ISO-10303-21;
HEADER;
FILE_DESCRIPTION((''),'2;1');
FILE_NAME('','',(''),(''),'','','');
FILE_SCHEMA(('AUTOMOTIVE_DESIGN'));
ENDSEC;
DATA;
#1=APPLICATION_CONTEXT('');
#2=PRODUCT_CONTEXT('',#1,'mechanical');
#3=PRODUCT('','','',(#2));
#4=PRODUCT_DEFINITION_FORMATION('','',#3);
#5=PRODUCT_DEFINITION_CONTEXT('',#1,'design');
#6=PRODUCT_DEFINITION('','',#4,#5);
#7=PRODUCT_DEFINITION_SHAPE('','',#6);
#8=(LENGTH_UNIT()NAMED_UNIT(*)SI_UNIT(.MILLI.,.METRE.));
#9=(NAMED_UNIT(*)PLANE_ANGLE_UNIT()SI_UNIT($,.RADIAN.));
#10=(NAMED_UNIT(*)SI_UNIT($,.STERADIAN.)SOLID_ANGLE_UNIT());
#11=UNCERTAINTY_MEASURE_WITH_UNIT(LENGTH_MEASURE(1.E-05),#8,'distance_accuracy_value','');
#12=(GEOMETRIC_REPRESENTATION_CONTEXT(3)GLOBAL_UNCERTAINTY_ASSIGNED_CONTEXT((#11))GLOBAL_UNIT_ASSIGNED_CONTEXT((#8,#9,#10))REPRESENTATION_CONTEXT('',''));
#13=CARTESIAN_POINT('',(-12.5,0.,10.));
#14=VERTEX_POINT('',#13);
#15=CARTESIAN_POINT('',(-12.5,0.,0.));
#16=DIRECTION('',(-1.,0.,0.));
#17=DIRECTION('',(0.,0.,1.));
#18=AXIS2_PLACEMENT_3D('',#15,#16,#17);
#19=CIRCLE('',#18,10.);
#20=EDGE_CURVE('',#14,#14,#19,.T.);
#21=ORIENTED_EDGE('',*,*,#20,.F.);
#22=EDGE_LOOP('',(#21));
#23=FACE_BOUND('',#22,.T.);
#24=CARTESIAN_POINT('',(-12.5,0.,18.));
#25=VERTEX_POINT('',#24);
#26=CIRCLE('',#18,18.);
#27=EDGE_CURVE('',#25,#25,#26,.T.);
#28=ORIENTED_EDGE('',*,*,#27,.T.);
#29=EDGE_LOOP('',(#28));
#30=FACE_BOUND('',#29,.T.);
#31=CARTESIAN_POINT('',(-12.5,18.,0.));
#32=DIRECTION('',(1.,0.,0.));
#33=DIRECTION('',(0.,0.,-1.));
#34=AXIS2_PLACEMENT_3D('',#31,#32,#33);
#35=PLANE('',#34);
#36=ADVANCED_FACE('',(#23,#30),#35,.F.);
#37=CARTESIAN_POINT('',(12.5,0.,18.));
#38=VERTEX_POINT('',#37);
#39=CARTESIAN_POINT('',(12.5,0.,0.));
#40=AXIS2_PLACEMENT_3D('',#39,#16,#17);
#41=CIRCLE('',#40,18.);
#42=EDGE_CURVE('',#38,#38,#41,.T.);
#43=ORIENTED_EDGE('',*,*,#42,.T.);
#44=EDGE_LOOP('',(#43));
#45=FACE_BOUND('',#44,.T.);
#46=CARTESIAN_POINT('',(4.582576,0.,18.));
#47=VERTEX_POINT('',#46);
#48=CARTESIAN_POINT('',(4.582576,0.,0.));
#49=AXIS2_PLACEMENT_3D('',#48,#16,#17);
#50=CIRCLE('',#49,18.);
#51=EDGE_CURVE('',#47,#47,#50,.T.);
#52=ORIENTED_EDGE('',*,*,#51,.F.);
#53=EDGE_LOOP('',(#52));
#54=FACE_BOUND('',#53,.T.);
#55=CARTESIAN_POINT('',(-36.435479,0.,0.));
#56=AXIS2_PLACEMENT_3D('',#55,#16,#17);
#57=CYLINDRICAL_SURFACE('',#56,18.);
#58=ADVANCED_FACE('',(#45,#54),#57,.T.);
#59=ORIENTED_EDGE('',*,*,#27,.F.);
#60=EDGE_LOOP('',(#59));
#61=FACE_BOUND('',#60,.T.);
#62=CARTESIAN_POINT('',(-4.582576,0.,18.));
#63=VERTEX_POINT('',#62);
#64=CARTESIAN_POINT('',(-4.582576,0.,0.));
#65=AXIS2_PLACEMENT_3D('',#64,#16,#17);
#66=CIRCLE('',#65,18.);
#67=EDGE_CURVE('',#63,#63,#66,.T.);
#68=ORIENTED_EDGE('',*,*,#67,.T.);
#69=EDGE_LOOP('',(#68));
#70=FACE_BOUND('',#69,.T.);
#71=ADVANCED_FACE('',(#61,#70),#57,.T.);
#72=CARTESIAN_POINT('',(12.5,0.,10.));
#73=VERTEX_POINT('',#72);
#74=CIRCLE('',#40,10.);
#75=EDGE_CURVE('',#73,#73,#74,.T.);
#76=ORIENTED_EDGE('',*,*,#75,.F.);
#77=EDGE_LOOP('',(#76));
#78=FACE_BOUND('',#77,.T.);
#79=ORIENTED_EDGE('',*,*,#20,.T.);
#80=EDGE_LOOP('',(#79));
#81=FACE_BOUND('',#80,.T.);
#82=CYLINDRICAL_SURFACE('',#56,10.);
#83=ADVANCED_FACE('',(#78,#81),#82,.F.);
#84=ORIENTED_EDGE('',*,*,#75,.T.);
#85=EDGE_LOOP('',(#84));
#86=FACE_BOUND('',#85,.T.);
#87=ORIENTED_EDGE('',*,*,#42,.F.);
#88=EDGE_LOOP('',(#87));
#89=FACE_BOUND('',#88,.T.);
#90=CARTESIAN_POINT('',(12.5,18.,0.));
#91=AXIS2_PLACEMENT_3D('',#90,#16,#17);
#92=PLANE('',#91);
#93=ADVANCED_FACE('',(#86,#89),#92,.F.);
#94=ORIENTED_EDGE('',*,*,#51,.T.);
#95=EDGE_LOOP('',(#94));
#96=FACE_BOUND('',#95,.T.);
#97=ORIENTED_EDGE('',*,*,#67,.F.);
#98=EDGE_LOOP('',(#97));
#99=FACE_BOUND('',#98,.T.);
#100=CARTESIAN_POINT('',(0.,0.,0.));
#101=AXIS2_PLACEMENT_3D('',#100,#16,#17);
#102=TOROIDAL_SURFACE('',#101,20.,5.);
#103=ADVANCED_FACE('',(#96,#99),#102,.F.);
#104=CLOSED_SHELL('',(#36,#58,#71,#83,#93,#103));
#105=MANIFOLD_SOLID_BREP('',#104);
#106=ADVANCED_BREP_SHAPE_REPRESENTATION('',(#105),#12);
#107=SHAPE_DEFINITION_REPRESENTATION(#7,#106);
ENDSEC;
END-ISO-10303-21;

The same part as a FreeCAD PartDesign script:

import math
import FreeCAD as App
import Part
import Sketcher

doc = App.newDocument("Part")
body = doc.addObject("PartDesign::Body", "Body")

sketch1 = body.newObject("Sketcher::SketchObject", "Sketch")
sketch1.AttachmentSupport = (doc.getObject("XY_Plane"), [""])
sketch1.MapMode = "FlatFace"
sketch1.addGeometry(Part.LineSegment(App.Vector(12, 18, 0), App.Vector(5, 18, 0)), False)
sketch1.addGeometry(Part.ArcOfCircle(Part.Circle(App.Vector(0, 20, 0), App.Vector(0, 0, 1), 5), math.radians(-156), math.radians(-24)), False)
sketch1.addGeometry(Part.LineSegment(App.Vector(-5, 18, 0), App.Vector(-12, 18, 0)), False)
sketch1.addGeometry(Part.LineSegment(App.Vector(-12, 18, 0), App.Vector(-12, 10, 0)), False)
sketch1.addGeometry(Part.LineSegment(App.Vector(-12, 10, 0), App.Vector(12, 10, 0)), False)
sketch1.addGeometry(Part.LineSegment(App.Vector(12, 10, 0), App.Vector(12, 18, 0)), False)
sketch1.addConstraint(Sketcher.Constraint("Coincident", 0, 2, 1, 2))
sketch1.addConstraint(Sketcher.Constraint("Coincident", 1, 1, 2, 1))
sketch1.addConstraint(Sketcher.Constraint("Coincident", 2, 2, 3, 1))
sketch1.addConstraint(Sketcher.Constraint("Coincident", 3, 2, 4, 1))
sketch1.addConstraint(Sketcher.Constraint("Coincident", 4, 2, 5, 1))
sketch1.addConstraint(Sketcher.Constraint("Coincident", 5, 2, 0, 1))
sketch1.addConstraint(Sketcher.Constraint("Horizontal", 0))
sketch1.addConstraint(Sketcher.Constraint("Horizontal", 2))
sketch1.addConstraint(Sketcher.Constraint("Vertical", 3))
sketch1.addConstraint(Sketcher.Constraint("Horizontal", 4))
sketch1.addConstraint(Sketcher.Constraint("Vertical", 5))
sketch1.addConstraint(Sketcher.Constraint("Symmetric", 0, 2, 1, 1, -2))
sketch1.addConstraint(Sketcher.Constraint("Equal", 0, 2))
sketch1.addConstraint(Sketcher.Constraint("Radius", 1, 5.0))
sketch1.addConstraint(Sketcher.Constraint("DistanceX", 4, 1, 4, 2, 25.0))
sketch1.addConstraint(Sketcher.Constraint("DistanceY", 3, 2, 3, 1, 8.0))
sketch1.addConstraint(Sketcher.Constraint("DistanceY", -1, 1, 1, 3, 20.0))
sketch1.addConstraint(Sketcher.Constraint("DistanceY", -1, 1, 0, 2, 18.0))
revolution = body.newObject("PartDesign::Revolution", "Revolution")
revolution.Profile = sketch1
revolution.ReferenceAxis = (sketch1, ["H_Axis"])
revolution.Angle = 360

doc.recompute()
